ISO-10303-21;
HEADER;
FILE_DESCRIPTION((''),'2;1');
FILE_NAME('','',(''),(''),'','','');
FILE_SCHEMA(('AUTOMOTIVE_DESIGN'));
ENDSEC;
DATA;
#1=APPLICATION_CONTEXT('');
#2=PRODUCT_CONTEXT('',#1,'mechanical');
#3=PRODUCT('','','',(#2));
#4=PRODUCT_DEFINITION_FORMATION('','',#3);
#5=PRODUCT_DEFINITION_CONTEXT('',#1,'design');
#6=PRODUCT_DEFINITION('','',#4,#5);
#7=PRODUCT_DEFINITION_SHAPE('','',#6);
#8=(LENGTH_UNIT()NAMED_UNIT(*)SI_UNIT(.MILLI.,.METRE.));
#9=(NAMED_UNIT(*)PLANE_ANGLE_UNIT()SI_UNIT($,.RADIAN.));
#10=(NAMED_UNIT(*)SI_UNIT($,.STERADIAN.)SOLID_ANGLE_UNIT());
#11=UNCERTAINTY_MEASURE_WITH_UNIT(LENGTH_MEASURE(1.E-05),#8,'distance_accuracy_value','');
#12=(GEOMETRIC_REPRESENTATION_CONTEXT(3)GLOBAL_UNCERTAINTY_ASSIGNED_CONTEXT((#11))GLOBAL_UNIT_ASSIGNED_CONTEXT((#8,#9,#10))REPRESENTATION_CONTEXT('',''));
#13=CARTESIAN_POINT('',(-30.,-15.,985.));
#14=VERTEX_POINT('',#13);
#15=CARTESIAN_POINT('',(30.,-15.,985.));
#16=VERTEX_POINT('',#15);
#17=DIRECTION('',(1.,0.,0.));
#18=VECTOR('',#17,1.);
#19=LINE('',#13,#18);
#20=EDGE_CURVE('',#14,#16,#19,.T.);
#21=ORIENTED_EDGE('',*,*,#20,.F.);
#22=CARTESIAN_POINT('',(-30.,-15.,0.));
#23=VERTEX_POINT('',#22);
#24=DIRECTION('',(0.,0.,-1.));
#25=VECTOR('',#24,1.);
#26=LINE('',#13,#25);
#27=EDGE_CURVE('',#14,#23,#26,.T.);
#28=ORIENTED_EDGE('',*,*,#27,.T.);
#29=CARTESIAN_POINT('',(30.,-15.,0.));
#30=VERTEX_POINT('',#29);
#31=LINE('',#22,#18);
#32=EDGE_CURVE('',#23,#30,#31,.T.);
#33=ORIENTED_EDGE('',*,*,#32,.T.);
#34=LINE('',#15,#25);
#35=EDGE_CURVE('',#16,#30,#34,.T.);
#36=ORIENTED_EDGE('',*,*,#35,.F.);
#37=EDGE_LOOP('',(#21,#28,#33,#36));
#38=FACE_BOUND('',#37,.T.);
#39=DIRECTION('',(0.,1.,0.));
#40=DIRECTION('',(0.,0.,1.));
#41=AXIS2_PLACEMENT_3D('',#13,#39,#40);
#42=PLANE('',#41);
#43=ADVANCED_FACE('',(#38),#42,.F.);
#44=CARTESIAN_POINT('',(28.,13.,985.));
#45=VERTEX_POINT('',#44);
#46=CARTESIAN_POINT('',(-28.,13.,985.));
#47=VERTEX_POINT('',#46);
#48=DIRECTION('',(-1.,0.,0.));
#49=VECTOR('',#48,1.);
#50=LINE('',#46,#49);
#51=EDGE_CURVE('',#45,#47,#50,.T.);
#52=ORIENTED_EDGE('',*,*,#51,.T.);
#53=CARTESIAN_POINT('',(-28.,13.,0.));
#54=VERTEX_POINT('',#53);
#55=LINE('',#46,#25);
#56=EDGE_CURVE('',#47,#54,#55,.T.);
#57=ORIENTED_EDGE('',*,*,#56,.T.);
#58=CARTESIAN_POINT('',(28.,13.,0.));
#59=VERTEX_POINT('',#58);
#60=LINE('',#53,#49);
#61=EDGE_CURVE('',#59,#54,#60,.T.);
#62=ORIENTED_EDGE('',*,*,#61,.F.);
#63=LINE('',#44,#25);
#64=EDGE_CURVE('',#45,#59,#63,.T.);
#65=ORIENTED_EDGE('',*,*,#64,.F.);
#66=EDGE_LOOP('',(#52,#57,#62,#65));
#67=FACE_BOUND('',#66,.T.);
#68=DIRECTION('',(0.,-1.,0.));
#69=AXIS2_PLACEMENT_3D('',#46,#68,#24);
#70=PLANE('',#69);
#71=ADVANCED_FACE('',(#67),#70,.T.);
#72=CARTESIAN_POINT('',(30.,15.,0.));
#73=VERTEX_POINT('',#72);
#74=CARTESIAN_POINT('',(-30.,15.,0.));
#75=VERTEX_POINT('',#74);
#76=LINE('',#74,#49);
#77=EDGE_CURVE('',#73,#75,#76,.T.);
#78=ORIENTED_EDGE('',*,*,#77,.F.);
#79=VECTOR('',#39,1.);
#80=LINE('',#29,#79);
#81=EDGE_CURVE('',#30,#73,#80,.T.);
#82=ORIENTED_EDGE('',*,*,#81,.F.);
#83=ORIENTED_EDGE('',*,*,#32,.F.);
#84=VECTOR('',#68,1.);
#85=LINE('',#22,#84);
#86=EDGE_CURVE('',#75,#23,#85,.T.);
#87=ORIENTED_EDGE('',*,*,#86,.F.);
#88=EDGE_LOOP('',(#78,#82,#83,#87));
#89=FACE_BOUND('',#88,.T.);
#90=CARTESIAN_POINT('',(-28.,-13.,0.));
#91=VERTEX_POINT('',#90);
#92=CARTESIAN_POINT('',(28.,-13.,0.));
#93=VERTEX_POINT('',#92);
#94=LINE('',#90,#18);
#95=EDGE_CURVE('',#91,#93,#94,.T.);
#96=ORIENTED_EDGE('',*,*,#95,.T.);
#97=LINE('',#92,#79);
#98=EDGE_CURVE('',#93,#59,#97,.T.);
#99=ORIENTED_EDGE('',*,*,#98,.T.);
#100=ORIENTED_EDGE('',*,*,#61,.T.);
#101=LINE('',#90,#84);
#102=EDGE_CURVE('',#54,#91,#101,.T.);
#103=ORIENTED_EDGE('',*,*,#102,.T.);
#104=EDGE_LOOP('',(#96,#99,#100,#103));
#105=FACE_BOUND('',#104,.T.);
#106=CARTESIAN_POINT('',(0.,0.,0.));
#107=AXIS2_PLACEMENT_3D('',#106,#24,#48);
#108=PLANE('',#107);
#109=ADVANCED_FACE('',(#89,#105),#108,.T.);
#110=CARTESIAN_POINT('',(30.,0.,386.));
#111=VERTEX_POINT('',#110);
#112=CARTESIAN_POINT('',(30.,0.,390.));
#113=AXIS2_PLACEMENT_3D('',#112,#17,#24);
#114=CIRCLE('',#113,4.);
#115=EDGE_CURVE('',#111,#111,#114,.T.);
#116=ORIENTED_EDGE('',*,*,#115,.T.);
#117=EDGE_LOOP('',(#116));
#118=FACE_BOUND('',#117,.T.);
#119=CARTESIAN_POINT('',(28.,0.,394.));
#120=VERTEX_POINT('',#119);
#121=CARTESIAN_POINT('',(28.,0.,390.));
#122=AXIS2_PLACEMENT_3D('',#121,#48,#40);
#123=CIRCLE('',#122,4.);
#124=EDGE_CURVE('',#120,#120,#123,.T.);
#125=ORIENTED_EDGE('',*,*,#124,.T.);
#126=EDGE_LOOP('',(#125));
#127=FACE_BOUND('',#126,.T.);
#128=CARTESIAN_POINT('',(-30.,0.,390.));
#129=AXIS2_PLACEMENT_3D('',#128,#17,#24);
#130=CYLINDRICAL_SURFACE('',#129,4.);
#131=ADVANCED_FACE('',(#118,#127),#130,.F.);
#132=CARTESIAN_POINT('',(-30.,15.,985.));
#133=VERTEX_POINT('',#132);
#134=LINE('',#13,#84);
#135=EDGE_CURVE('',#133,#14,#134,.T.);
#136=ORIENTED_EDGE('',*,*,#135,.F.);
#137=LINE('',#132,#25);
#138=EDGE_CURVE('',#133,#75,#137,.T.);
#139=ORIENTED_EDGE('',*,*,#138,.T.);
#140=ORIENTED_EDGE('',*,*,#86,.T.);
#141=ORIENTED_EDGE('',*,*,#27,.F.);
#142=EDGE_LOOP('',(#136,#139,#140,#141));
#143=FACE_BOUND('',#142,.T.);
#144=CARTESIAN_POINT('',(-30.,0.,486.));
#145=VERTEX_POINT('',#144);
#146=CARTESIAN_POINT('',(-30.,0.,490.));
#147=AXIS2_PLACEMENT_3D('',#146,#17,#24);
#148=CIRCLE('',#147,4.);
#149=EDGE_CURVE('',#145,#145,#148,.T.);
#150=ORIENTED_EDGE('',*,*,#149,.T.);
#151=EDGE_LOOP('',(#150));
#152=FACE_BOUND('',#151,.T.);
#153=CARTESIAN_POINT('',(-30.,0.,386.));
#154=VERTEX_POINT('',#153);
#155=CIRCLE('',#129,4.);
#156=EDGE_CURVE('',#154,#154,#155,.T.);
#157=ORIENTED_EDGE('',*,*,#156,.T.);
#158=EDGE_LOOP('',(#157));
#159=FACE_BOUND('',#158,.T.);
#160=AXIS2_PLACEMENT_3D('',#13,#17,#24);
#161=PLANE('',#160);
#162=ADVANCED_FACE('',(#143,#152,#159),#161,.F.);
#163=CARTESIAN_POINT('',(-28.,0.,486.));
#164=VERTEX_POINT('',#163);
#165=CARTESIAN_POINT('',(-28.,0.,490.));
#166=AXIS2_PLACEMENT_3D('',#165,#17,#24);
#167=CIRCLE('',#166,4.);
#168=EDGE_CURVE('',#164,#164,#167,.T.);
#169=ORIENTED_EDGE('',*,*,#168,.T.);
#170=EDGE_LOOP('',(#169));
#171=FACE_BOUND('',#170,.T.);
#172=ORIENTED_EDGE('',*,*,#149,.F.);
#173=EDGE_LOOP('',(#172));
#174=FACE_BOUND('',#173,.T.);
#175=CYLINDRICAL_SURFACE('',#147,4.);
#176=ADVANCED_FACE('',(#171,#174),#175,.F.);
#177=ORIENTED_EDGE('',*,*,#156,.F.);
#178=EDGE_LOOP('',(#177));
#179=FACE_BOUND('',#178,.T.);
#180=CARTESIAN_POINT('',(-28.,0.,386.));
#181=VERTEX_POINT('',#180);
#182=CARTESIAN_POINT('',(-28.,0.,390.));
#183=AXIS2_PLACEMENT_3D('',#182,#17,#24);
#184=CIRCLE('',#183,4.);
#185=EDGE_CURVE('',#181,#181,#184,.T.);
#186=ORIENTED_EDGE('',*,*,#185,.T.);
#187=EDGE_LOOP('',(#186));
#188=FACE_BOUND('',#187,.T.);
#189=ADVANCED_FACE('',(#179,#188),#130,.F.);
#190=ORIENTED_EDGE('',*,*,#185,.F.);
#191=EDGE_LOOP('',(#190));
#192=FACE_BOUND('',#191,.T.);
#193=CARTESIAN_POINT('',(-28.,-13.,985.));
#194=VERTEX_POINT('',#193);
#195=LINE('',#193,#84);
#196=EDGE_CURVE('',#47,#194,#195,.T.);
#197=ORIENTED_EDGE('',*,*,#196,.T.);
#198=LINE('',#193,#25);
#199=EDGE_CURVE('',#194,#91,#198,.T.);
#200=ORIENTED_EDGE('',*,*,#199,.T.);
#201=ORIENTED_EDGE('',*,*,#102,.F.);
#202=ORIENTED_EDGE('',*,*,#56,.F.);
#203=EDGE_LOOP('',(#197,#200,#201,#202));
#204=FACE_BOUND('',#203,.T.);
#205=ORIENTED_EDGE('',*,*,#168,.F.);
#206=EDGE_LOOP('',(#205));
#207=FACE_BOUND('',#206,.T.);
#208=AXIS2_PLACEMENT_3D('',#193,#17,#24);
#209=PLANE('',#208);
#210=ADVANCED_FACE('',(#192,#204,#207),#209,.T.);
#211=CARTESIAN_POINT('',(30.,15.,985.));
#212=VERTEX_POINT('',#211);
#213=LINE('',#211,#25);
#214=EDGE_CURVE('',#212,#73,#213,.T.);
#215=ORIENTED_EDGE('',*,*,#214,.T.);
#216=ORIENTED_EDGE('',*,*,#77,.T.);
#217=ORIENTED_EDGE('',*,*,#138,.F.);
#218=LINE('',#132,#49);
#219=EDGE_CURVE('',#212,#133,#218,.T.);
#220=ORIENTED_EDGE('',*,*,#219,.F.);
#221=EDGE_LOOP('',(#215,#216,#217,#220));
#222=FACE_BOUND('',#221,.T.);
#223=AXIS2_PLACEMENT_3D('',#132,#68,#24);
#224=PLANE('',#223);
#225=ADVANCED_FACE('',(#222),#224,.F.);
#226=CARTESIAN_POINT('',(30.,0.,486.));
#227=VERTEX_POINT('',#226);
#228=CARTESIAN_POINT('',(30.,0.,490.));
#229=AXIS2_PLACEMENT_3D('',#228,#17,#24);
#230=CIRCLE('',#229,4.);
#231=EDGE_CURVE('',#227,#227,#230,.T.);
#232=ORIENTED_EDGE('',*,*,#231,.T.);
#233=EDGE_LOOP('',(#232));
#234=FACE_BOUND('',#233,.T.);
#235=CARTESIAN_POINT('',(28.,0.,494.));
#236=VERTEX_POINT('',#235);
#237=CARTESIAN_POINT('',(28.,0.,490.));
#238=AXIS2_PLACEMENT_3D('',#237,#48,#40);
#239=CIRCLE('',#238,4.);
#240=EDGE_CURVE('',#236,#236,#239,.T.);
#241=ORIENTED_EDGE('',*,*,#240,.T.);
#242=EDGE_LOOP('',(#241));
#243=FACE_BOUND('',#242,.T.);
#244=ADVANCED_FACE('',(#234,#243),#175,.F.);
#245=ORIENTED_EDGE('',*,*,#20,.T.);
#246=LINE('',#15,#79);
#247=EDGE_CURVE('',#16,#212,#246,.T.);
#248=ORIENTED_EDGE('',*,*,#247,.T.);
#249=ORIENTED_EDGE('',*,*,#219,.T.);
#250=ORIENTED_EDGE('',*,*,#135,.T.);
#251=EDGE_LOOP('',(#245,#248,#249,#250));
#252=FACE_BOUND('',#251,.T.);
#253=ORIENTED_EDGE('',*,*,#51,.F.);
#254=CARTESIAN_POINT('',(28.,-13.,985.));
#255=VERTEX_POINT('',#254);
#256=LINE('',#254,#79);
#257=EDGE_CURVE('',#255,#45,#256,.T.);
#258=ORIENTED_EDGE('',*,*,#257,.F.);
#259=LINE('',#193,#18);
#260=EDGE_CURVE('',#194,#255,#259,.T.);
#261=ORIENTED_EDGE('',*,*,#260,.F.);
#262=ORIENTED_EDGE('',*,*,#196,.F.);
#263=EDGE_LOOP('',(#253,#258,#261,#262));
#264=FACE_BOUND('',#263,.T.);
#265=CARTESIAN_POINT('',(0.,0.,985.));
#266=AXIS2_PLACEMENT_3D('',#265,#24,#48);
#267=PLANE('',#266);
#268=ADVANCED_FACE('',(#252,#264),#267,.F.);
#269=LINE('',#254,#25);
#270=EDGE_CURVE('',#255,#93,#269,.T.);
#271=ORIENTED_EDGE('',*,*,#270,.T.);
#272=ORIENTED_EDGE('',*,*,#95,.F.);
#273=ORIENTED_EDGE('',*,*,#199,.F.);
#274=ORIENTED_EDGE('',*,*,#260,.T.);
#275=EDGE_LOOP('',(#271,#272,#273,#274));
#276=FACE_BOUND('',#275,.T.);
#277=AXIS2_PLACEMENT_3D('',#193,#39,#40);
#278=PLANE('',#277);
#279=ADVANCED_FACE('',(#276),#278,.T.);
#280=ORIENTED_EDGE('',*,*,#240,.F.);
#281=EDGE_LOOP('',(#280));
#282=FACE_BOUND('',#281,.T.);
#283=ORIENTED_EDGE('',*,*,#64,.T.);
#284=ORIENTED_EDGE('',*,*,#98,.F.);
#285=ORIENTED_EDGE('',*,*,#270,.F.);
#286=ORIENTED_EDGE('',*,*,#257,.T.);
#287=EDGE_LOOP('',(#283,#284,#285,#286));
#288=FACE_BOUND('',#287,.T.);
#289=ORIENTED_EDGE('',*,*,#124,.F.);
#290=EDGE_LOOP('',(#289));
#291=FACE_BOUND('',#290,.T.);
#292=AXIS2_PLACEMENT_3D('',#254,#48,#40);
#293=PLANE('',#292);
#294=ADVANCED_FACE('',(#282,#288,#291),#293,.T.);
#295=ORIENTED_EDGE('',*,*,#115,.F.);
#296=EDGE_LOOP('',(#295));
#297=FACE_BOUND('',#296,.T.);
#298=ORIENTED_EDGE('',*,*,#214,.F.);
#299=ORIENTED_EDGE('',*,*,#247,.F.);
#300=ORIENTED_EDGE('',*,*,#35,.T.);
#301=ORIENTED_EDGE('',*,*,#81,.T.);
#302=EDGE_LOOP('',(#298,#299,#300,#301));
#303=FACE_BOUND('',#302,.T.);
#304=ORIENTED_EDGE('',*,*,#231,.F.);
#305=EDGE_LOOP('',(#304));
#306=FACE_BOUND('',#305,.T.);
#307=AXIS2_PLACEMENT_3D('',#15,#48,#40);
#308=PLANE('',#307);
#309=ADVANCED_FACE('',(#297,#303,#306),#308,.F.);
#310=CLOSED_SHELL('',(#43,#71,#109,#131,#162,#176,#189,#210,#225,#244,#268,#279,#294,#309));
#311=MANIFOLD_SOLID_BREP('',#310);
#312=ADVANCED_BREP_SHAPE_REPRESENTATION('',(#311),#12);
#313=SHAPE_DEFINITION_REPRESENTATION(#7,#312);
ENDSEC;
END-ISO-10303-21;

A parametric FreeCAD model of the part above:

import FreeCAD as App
import Part
import Sketcher

V = App.Vector

doc = App.newDocument("Part")
params = doc.addObject("Spreadsheet::Sheet", "Params")
for row, (alias, value) in enumerate([
    ("sketch1_width", "60 mm"),
    ("sketch1_width2", "56 mm"),
    ("sketch1_height", "30 mm"),
    ("sketch1_height2", "26 mm"),
    ("pad1_length", "985 mm"),
    ("sketch2_diameter", "8 mm"),
], start=1):
    params.set(f"A{row}", alias)
    params.set(f"B{row}", "=" + value)
    params.setAlias(f"B{row}", alias)

body = doc.addObject("PartDesign::Body", "Body")

sketch1 = doc.addObject("Sketcher::SketchObject", "Sketch")
body.addObject(sketch1)
sketch1.AttachmentSupport = (doc.XY_Plane, [""])
sketch1.MapMode = "FlatFace"
sketch1.addGeometry([
    Part.LineSegment(V(-30, 15, 0), V(-30, -15, 0)),
    Part.LineSegment(V(-30, -15, 0), V(30, -15, 0)),
    Part.LineSegment(V(30, -15, 0), V(30, 15, 0)),
    Part.LineSegment(V(30, 15, 0), V(-30, 15, 0)),
    Part.LineSegment(V(28, -13, 0), V(-28, -13, 0)),
    Part.LineSegment(V(-28, -13, 0), V(-28, 13, 0)),
    Part.LineSegment(V(-28, 13, 0), V(28, 13, 0)),
    Part.LineSegment(V(28, 13, 0), V(28, -13, 0)),
], False)
sketch1.addConstraint([
    Sketcher.Constraint("Coincident", 0, 2, 1, 1),
    Sketcher.Constraint("Coincident", 1, 2, 2, 1),
    Sketcher.Constraint("Coincident", 2, 2, 3, 1),
    Sketcher.Constraint("Coincident", 3, 2, 0, 1),
    Sketcher.Constraint("Coincident", 4, 2, 5, 1),
    Sketcher.Constraint("Coincident", 5, 2, 6, 1),
    Sketcher.Constraint("Coincident", 6, 2, 7, 1),
    Sketcher.Constraint("Coincident", 7, 2, 4, 1),
    Sketcher.Constraint("Vertical", 0),
    Sketcher.Constraint("Horizontal", 1),
    Sketcher.Constraint("Vertical", 2),
    Sketcher.Constraint("Horizontal", 3),
    Sketcher.Constraint("Horizontal", 4),
    Sketcher.Constraint("Vertical", 5),
    Sketcher.Constraint("Horizontal", 6),
    Sketcher.Constraint("Vertical", 7),
    Sketcher.Constraint("Symmetric", 0, 2, 2, 2, -1, 1),
    Sketcher.Constraint("Symmetric", 4, 2, 6, 2, -1, 1),
    Sketcher.Constraint("DistanceX", 1, 1, 1, 2, 60.0),
    Sketcher.Constraint("DistanceX", 4, 2, 4, 1, 56.0),
    Sketcher.Constraint("DistanceY", 0, 2, 0, 1, 30.0),
    Sketcher.Constraint("DistanceY", 5, 1, 5, 2, 26.0),
])
sketch1.setExpression("Constraints[18]", "Params.sketch1_width")
sketch1.setExpression("Constraints[19]", "Params.sketch1_width2")
sketch1.setExpression("Constraints[20]", "Params.sketch1_height")
sketch1.setExpression("Constraints[21]", "Params.sketch1_height2")
pad1 = doc.addObject("PartDesign::Pad", "Pad")
body.addObject(pad1)
pad1.Profile = sketch1
pad1.setExpression("Length", "Params.pad1_length")

sketch2 = doc.addObject("Sketcher::SketchObject", "Sketch001")
body.addObject(sketch2)
sketch2.AttachmentSupport = (doc.YZ_Plane, [""])
sketch2.MapMode = "FlatFace"
sketch2.AttachmentOffset = App.Placement(V(0, 0, 30), App.Rotation())
sketch2.addGeometry([
    Part.Circle(V(0, 390, 0), V(0, 0, 1), 4),
    Part.Circle(V(0, 490, 0), V(0, 0, 1), 4),
], False)
sketch2.addConstraint([
    Sketcher.Constraint("Equal", 0, 1),
    Sketcher.Constraint("PointOnObject", 0, 3, -2),
    Sketcher.Constraint("PointOnObject", 1, 3, -2),
    Sketcher.Constraint("Diameter", 0, 8.0),
    Sketcher.Constraint("DistanceY", -1, 1, 0, 3, 390.0),
    Sketcher.Constraint("DistanceY", -1, 1, 1, 3, 490.0),
])
sketch2.setExpression("Constraints[3]", "Params.sketch2_diameter")
pocket1 = doc.addObject("PartDesign::Pocket", "Pocket")
body.addObject(pocket1)
pocket1.Profile = sketch2
pocket1.Type = "ThroughAll"

doc.recompute()
